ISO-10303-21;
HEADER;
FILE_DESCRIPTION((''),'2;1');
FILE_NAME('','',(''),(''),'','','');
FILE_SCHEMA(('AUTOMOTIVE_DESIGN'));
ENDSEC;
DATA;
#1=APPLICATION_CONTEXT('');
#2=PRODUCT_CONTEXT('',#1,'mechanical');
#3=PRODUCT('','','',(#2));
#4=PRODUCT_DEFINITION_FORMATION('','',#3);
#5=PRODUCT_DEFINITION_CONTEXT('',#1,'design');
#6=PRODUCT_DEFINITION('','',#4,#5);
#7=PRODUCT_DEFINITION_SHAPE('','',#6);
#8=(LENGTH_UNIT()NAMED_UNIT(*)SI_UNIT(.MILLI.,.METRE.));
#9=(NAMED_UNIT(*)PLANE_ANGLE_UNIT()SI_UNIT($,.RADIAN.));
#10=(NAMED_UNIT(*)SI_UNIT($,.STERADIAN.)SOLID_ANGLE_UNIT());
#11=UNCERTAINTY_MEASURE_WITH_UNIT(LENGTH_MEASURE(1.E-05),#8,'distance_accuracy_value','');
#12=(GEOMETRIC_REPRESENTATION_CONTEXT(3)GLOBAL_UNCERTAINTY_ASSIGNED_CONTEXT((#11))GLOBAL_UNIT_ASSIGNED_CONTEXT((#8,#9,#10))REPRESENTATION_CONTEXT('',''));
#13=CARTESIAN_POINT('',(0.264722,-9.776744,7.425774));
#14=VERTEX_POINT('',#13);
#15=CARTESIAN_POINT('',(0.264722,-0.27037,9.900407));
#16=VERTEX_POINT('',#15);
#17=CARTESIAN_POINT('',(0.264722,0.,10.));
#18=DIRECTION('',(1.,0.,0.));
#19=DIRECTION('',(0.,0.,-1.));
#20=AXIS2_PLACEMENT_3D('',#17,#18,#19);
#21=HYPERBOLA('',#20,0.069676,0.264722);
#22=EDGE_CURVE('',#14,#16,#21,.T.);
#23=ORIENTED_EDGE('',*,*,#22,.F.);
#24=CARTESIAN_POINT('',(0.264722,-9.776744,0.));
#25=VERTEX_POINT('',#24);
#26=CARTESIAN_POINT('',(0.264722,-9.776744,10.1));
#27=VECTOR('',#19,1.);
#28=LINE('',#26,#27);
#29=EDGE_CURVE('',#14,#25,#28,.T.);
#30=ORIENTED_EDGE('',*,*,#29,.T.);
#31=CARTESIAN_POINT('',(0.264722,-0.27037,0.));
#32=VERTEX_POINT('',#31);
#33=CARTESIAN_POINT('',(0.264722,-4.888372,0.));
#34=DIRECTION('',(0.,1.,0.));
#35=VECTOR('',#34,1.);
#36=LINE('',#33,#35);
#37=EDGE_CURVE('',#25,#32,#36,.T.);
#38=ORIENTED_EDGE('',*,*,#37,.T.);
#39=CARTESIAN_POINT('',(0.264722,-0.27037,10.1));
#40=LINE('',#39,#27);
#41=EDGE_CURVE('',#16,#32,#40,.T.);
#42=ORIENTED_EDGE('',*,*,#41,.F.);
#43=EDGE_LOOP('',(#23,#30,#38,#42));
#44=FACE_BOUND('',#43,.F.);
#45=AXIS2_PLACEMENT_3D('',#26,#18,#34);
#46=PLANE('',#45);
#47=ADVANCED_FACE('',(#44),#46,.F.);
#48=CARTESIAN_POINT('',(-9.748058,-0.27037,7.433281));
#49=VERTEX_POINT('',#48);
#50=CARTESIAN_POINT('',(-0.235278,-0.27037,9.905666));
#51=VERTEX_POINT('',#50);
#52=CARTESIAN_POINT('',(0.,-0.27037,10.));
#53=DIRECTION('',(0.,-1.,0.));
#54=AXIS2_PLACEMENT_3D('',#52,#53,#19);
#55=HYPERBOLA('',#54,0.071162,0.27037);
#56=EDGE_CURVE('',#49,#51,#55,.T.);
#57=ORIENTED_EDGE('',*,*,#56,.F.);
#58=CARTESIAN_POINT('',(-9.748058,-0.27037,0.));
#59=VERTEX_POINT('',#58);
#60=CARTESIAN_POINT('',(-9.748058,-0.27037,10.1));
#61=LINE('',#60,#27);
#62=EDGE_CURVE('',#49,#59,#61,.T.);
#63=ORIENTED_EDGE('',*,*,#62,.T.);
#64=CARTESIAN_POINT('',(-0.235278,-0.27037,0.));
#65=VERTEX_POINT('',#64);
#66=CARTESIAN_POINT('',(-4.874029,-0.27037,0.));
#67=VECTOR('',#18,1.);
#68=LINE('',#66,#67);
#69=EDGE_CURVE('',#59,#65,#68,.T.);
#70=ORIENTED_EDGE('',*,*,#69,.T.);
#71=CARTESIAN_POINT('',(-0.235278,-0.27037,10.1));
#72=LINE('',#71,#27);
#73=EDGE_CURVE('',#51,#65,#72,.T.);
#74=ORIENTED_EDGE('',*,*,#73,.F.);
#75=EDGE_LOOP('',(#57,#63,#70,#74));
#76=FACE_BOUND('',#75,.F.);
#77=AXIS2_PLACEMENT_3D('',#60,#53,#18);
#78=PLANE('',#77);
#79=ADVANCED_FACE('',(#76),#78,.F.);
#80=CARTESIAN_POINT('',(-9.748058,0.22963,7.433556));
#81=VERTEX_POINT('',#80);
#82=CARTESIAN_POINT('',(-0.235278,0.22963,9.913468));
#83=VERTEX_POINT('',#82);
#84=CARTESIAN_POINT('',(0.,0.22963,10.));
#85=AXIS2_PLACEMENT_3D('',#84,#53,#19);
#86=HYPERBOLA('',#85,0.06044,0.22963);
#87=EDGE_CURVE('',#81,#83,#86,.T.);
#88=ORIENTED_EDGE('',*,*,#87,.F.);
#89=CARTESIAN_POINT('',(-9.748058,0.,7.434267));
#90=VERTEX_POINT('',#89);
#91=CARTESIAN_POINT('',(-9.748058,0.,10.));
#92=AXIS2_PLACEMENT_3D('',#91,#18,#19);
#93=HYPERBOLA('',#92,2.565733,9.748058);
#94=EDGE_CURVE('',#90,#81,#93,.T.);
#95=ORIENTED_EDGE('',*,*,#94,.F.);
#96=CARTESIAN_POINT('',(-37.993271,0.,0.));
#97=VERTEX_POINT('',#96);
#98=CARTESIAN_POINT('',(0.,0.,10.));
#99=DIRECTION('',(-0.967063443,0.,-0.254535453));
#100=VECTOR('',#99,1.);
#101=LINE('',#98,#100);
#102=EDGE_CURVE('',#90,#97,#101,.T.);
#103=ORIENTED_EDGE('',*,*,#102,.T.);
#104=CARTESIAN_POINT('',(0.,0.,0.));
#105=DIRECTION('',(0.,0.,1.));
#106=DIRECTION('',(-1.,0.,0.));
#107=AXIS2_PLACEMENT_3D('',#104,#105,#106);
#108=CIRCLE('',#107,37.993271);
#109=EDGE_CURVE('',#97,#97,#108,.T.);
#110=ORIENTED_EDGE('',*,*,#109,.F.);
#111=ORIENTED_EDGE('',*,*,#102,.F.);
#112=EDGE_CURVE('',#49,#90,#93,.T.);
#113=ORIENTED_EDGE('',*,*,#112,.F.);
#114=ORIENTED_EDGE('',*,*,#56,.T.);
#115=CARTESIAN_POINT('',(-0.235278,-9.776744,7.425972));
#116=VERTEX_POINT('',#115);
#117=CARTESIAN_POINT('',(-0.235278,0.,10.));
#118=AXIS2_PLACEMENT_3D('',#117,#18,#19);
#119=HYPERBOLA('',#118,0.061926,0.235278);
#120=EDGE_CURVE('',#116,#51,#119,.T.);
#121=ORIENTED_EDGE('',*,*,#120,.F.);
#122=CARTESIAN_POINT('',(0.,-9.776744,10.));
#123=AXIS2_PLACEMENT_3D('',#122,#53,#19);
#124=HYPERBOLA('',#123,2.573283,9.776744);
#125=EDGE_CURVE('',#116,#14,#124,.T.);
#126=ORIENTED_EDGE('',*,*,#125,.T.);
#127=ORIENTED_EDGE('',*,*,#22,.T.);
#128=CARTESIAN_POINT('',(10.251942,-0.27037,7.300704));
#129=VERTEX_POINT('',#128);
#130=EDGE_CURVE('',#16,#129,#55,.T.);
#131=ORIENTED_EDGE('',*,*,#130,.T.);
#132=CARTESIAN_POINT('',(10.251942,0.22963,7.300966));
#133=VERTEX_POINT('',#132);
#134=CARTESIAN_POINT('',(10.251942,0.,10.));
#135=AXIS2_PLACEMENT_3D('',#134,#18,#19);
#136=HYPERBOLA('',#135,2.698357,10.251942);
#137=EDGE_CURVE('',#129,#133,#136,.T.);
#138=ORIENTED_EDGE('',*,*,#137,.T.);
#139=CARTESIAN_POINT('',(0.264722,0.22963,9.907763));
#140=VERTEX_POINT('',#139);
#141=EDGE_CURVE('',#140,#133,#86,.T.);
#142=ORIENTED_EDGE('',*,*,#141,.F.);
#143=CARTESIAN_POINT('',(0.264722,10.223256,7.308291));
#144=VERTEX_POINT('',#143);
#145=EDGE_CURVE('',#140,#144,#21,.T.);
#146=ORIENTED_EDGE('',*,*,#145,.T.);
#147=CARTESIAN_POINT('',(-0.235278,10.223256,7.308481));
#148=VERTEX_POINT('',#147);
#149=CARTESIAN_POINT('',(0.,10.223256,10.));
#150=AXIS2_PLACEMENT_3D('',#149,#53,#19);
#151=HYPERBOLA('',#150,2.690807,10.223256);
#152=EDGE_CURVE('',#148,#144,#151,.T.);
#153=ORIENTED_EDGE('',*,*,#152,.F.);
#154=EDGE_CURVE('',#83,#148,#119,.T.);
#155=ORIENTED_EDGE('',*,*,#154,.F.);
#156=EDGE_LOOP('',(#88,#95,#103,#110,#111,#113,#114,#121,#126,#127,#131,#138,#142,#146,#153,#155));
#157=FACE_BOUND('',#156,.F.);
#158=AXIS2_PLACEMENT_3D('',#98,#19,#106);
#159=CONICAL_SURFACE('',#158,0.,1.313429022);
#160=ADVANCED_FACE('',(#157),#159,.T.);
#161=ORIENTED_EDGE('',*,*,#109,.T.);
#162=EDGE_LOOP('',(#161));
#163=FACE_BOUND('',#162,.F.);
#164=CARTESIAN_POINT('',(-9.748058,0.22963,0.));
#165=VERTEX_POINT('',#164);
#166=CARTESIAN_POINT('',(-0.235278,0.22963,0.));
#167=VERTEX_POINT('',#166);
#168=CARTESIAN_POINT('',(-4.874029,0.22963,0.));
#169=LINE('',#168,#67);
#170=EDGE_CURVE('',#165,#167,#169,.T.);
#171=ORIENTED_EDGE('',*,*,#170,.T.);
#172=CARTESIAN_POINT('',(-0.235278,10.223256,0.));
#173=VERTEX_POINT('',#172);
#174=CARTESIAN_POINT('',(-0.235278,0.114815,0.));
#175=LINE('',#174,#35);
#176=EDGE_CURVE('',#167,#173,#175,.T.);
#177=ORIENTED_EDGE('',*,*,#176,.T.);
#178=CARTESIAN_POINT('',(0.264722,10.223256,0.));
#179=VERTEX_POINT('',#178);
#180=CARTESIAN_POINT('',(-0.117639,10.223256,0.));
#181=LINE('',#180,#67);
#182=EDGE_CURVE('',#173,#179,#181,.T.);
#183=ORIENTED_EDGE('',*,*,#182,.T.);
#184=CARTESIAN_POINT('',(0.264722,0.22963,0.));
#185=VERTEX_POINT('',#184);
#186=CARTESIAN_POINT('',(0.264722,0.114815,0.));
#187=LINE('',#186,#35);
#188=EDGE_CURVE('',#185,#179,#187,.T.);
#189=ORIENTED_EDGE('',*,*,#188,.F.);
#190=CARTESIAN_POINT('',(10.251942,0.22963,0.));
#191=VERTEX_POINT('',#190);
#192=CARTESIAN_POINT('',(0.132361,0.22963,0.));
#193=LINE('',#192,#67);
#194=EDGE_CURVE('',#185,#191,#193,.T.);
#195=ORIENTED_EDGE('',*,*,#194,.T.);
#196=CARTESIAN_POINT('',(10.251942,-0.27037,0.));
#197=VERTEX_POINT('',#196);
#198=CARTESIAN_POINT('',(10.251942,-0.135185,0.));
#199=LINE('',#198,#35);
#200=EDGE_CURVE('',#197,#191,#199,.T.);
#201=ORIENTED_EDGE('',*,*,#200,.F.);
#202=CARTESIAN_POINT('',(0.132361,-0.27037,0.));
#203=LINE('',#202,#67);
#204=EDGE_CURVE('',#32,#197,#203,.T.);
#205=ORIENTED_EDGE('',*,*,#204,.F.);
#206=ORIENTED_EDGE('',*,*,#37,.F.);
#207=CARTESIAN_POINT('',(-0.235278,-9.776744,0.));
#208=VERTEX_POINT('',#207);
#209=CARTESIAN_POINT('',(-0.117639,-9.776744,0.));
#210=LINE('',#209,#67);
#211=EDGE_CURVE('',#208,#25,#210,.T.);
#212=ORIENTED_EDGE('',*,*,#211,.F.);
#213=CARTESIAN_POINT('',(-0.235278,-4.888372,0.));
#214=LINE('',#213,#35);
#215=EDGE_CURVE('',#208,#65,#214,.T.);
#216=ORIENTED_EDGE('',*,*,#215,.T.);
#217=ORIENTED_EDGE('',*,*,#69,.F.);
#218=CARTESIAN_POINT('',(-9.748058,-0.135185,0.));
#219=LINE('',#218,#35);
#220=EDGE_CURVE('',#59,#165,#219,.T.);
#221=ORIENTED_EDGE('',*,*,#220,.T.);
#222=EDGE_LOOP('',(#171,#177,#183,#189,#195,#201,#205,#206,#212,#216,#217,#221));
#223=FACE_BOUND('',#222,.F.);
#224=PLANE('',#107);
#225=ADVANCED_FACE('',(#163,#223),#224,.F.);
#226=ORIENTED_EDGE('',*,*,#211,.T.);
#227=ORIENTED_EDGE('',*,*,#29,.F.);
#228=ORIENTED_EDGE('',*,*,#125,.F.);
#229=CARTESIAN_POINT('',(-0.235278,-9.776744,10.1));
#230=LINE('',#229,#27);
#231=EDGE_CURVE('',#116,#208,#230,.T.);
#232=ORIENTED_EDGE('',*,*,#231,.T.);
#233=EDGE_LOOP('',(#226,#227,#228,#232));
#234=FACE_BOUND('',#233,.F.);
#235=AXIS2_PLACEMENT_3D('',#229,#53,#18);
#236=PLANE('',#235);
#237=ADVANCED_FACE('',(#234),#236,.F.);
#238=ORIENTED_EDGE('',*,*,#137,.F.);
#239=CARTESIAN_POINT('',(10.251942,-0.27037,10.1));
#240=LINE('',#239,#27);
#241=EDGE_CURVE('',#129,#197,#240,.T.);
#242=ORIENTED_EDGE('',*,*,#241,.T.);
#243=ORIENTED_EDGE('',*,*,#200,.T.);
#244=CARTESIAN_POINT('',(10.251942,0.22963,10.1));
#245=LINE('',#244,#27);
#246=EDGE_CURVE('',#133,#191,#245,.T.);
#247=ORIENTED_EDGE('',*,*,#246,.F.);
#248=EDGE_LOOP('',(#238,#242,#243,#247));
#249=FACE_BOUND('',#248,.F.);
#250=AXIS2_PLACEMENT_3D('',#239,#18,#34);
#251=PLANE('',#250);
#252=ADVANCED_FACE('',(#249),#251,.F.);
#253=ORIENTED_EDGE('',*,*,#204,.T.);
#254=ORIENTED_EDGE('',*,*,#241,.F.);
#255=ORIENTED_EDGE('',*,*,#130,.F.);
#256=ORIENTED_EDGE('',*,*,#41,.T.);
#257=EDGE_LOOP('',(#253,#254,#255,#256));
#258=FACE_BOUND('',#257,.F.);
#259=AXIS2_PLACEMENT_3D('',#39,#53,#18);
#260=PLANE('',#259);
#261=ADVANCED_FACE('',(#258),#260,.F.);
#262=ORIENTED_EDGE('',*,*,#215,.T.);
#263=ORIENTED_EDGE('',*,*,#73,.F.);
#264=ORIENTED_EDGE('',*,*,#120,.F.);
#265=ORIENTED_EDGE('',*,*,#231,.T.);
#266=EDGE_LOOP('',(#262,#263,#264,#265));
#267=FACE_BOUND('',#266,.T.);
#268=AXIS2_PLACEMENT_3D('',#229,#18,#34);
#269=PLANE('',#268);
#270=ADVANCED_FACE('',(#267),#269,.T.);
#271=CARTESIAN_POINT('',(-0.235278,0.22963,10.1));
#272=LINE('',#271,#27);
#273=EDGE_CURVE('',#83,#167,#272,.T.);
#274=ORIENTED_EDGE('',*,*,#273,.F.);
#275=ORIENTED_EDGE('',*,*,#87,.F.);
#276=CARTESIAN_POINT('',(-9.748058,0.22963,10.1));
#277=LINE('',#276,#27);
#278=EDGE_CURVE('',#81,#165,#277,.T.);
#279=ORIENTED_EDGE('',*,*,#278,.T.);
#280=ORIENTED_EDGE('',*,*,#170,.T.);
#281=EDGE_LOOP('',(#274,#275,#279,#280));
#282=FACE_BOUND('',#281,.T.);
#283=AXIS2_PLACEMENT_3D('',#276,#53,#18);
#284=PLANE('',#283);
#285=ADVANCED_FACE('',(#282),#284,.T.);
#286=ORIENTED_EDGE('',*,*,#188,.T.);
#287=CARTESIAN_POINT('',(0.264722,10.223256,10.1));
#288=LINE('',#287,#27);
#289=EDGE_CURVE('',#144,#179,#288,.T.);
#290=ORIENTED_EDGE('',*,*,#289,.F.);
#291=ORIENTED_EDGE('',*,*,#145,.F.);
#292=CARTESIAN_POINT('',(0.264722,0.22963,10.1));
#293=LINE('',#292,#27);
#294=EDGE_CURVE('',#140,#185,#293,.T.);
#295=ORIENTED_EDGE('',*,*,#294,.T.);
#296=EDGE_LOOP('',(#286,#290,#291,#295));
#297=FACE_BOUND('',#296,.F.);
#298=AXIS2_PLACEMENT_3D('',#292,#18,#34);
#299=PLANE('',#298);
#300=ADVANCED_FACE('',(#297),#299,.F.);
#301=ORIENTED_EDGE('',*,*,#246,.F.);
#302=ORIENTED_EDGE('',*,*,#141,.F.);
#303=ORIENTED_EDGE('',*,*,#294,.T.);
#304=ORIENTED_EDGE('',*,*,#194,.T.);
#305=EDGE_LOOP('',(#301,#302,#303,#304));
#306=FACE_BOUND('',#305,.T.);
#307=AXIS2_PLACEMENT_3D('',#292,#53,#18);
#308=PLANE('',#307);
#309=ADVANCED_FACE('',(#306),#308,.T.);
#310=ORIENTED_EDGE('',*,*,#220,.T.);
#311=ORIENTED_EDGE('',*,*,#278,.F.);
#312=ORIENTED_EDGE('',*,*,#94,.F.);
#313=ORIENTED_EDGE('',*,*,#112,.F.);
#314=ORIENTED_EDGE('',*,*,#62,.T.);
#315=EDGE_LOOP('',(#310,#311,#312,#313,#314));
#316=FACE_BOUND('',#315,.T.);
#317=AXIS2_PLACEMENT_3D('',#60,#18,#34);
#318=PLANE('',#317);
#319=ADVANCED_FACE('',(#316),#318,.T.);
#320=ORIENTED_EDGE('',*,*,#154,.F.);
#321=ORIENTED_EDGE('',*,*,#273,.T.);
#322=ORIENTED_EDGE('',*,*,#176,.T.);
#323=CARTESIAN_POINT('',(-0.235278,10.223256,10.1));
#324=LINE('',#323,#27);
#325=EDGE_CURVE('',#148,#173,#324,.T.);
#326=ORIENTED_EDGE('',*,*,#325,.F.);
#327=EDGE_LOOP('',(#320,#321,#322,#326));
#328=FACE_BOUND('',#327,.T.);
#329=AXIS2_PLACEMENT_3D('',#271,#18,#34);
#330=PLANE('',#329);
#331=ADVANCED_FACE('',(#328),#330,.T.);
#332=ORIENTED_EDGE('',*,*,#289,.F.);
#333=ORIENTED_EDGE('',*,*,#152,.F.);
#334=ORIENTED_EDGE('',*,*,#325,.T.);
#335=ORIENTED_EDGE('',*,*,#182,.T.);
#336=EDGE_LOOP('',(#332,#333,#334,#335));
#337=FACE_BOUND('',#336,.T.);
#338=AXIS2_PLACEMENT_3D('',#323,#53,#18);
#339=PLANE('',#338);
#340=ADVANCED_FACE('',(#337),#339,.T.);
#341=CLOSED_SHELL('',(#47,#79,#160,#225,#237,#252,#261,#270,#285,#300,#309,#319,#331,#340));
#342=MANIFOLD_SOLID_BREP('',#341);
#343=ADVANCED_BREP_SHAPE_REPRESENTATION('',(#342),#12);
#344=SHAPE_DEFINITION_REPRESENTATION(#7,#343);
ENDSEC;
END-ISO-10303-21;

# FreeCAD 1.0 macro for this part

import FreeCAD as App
import Part
import Sketcher


def add_polygon(sketch, points):
    """Adds a closed chain of lines whose ends are joined by coincident constraints."""
    first, n = sketch.GeometryCount, len(points)
    for a, b in zip(points, points[1:] + points[:1]):
        sketch.addGeometry(Part.LineSegment(App.Vector(*a, 0), App.Vector(*b, 0)), False)
    for i in range(n):
        sketch.addConstraint(Sketcher.Constraint("Coincident", first + i, 2, first + (i + 1) % n, 1))

doc = App.newDocument("Part")
body = doc.addObject("PartDesign::Body", "Body")

# Sketch on XZ plane
sketch1 = doc.addObject("Sketcher::SketchObject", "Sketch")
body.addObject(sketch1)
sketch1.AttachmentSupport = (doc.XZ_Plane, [""])
sketch1.MapMode = "FlatFace"
add_polygon(sketch1, [(0, 10), (-38, 0), (0, 0)])  # lines 0-2
sketch1.addConstraint(Sketcher.Constraint("Horizontal", 1))
sketch1.addConstraint(Sketcher.Constraint("Vertical", 2))
sketch1.addConstraint(Sketcher.Constraint("Coincident", 1, 2, -1, 1))
sketch1.addConstraint(Sketcher.Constraint("DistanceY", 2, 1, 2, 2, 10.0))
sketch1.addConstraint(Sketcher.Constraint("DistanceX", 1, 1, 1, 2, 37.993271))
revolution = doc.addObject("PartDesign::Revolution", "Revolution")
body.addObject(revolution)
revolution.Profile = sketch1
revolution.ReferenceAxis = (sketch1, ["V_Axis"])
revolution.Angle = 360

# Sketch on XY plane
sketch2 = doc.addObject("Sketcher::SketchObject", "Sketch001")
body.addObject(sketch2)
sketch2.AttachmentSupport = (doc.XY_Plane, [""])
sketch2.MapMode = "FlatFace"
sketch2.AttachmentOffset = App.Placement(App.Vector(0, 0, 10.1), App.Rotation())
add_polygon(sketch2, [(-9.7, 0.2), (-9.7, -0.3), (-0.2, -0.3), (-0.2, -9.8), (0.3, -9.8), (0.3, -0.3), (10.3, -0.3), (10.3, 0.2), (0.3, 0.2), (0.3, 10.2), (-0.2, 10.2), (-0.2, 0.2)])  # lines 0-11
sketch2.addConstraint(Sketcher.Constraint("Vertical", 0))
sketch2.addConstraint(Sketcher.Constraint("Horizontal", 1))
sketch2.addConstraint(Sketcher.Constraint("Vertical", 2))
sketch2.addConstraint(Sketcher.Constraint("Horizontal", 3))
sketch2.addConstraint(Sketcher.Constraint("Vertical", 4))
sketch2.addConstraint(Sketcher.Constraint("Horizontal", 5))
sketch2.addConstraint(Sketcher.Constraint("Vertical", 6))
sketch2.addConstraint(Sketcher.Constraint("Horizontal", 7))
sketch2.addConstraint(Sketcher.Constraint("Vertical", 8))
sketch2.addConstraint(Sketcher.Constraint("Horizontal", 9))
sketch2.addConstraint(Sketcher.Constraint("Vertical", 10))
sketch2.addConstraint(Sketcher.Constraint("Horizontal", 11))
sketch2.addConstraint(Sketcher.Constraint("Horizontal", 1, 2, 4, 2))
sketch2.addConstraint(Sketcher.Constraint("Horizontal", 7, 2, 10, 2))
sketch2.addConstraint(Sketcher.Constraint("Vertical", 4, 2, 7, 2))
sketch2.addConstraint(Sketcher.Constraint("Vertical", 2, 2, 9, 2))
sketch2.addConstraint(Sketcher.Constraint("Equal", 9, 0))
sketch2.addConstraint(Sketcher.Constraint("DistanceX", 3, 1, 3, 2, 0.5))
sketch2.addConstraint(Sketcher.Constraint("DistanceX", 0, 2, 5, 2, 20.0))
sketch2.addConstraint(Sketcher.Constraint("DistanceX", 1, 1, 1, 2, 9.51278))
sketch2.addConstraint(Sketcher.Constraint("DistanceY", 2, 2, 2, 1, 9.506374))
sketch2.addConstraint(Sketcher.Constraint("DistanceY", 8, 1, 8, 2, 9.993626))
sketch2.addConstraint(Sketcher.Constraint("DistanceY", 0, 2, -1, 1, 0.27037))
sketch2.addConstraint(Sketcher.Constraint("DistanceX", 0, 2, -1, 1, 9.748058))
pocket1 = doc.addObject("PartDesign::Pocket", "Pocket")
body.addObject(pocket1)
pocket1.Profile = sketch2
pocket1.Length = 25

doc.recompute()
